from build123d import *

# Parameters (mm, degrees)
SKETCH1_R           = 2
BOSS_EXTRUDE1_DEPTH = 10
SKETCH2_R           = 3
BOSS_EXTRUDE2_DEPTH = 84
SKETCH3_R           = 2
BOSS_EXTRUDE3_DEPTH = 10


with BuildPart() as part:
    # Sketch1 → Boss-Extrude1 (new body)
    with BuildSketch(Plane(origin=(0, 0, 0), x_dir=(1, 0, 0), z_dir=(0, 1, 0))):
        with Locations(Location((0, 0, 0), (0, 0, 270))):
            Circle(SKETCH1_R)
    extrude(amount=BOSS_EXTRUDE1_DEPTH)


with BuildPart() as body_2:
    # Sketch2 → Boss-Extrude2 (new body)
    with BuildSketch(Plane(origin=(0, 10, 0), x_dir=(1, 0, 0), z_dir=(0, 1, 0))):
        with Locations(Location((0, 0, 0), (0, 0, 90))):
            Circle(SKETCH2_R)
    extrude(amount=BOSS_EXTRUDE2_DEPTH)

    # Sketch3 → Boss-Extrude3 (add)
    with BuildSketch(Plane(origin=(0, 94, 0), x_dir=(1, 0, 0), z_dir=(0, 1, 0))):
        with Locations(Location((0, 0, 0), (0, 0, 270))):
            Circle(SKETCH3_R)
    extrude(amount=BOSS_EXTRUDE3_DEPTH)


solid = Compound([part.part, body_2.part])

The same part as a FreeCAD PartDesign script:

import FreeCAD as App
import Part
import Sketcher

V = App.Vector
Q = App.Units.Quantity

doc = App.newDocument("Part")
body = doc.addObject("PartDesign::Body", "Body")

sketch1 = body.newObject("Sketcher::SketchObject", "Sketch")
sketch1.AttachmentSupport = (doc.getObject("XZ_Plane"), [""])
sketch1.MapMode = "FlatFace"
sketch1.addGeometry(Part.Circle(V(0, 0, 0), V(0, 0, 1), 2), False)
sketch1.addConstraint(Sketcher.Constraint("Coincident", 0, 3, -1, 1))
sketch1.addConstraint(Sketcher.Constraint("Diameter", 0, Q("4 mm")))
pad1 = body.newObject("PartDesign::Pad", "Pad")
pad1.Profile = sketch1
pad1.Length = 10
pad1.Reversed = True
body2 = doc.addObject("PartDesign::Body", "Body001")

sketch2 = body2.newObject("Sketcher::SketchObject", "Sketch001")
sketch2.AttachmentSupport = (doc.getObject("XZ_Plane001"), [""])
sketch2.MapMode = "FlatFace"
sketch2.AttachmentOffset = App.Placement(V(0, 0, -10), App.Rotation())
sketch2.addGeometry(Part.Circle(V(0, 0, 0), V(0, 0, 1), 3), False)
sketch2.addConstraint(Sketcher.Constraint("Coincident", 0, 3, -1, 1))
sketch2.addConstraint(Sketcher.Constraint("Diameter", 0, Q("6 mm")))
pad2 = body2.newObject("PartDesign::Pad", "Pad001")
pad2.Profile = sketch2
pad2.Length = 84
pad2.Reversed = True

sketch3 = body2.newObject("Sketcher::SketchObject", "Sketch002")
sketch3.AttachmentSupport = (doc.getObject("XZ_Plane001"), [""])
sketch3.MapMode = "FlatFace"
sketch3.AttachmentOffset = App.Placement(V(0, 0, -94), App.Rotation())
sketch3.addGeometry(Part.Circle(V(0, 0, 0), V(0, 0, 1), 2), False)
sketch3.addConstraint(Sketcher.Constraint("Coincident", 0, 3, -1, 1))
sketch3.addConstraint(Sketcher.Constraint("Diameter", 0, Q("4 mm")))
pad3 = body2.newObject("PartDesign::Pad", "Pad002")
pad3.Profile = sketch3
pad3.Length = 10
pad3.Reversed = True

doc.recompute()
